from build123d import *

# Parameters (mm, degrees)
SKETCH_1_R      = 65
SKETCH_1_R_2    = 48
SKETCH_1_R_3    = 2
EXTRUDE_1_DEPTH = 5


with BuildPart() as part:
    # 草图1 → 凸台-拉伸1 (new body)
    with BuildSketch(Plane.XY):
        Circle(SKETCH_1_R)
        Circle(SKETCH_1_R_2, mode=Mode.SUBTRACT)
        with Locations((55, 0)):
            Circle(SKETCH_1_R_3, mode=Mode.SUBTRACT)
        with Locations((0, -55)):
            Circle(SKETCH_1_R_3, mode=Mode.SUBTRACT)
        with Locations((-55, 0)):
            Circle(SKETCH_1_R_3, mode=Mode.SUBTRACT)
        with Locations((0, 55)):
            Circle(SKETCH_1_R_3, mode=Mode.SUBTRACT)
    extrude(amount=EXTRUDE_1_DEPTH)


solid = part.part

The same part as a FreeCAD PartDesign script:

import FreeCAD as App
import Part
import Sketcher

doc = App.newDocument("Part")
body = doc.addObject("PartDesign::Body", "Body")

sketch1 = body.newObject("Sketcher::SketchObject", "Sketch")
sketch1.AttachmentSupport = (doc.getObject("XY_Plane"), [""])
sketch1.MapMode = "FlatFace"
sketch1.addGeometry([
    Part.Circle(App.Vector(0, 0, 0), App.Vector(0, 0, 1), 65),
    Part.Circle(App.Vector(0, -55, 0), App.Vector(0, 0, 1), 2),
    Part.Circle(App.Vector(-55, 0, 0), App.Vector(0, 0, 1), 2),
    Part.Circle(App.Vector(0, 0, 0), App.Vector(0, 0, 1), 48),
    Part.Circle(App.Vector(55, 0, 0), App.Vector(0, 0, 1), 2),
    Part.Circle(App.Vector(0, 55, 0), App.Vector(0, 0, 1), 2),
], False)
sketch1.addConstraint([
    Sketcher.Constraint("Coincident", 0, 3, -1, 1),
    Sketcher.Constraint("Coincident", 3, 3, -1, 1),
    Sketcher.Constraint("Equal", 1, 2),
    Sketcher.Constraint("Equal", 2, 4),
    Sketcher.Constraint("Equal", 4, 5),
    Sketcher.Constraint("Symmetric", 2, 3, 4, 3, -1, 1),
    Sketcher.Constraint("Symmetric", 1, 3, 5, 3, -1, 1),
    Sketcher.Constraint("PointOnObject", 1, 3, -2),
    Sketcher.Constraint("PointOnObject", 2, 3, -1),
    Sketcher.Constraint("Diameter", 0, 130.0),
    Sketcher.Constraint("Diameter", 1, 4.0),
    Sketcher.Constraint("Diameter", 3, 96.0),
    Sketcher.Constraint("DistanceY", 1, 3, -1, 1, 55.0),
    Sketcher.Constraint("DistanceX", 2, 3, -1, 1, 55.0),
])
pad1 = body.newObject("PartDesign::Pad", "Pad")
pad1.Profile = sketch1
pad1.Length = 5

doc.recompute()
